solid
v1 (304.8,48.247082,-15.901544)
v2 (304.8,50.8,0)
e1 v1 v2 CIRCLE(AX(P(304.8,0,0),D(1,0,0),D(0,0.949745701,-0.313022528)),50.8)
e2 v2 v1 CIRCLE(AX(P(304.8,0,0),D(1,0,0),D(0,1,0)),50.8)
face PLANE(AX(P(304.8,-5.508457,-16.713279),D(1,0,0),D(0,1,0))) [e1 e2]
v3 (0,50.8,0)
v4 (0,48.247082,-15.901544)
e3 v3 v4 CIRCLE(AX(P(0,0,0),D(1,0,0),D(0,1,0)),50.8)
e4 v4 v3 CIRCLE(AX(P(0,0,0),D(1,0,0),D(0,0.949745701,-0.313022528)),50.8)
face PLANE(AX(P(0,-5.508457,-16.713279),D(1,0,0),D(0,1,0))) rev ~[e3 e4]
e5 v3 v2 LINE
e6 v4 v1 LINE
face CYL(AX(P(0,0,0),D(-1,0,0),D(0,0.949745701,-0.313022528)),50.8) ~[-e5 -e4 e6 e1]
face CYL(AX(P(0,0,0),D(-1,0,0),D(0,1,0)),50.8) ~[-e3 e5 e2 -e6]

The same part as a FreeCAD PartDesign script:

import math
import FreeCAD as App
import Part
import Sketcher
from FreeCAD import Vector
Q = App.Units.Quantity

doc = App.newDocument("Part")
params = doc.addObject("Spreadsheet::Sheet", "Params")
for row, (alias, value) in enumerate([
    ("sketch1_radius", "2 in"),
    ("pad1_length", "12 in"),
], start=1):
    params.set(f"A{row}", alias)
    params.set(f"B{row}", "=" + value)
    params.setAlias(f"B{row}", alias)

body = doc.addObject("PartDesign::Body", "Body")

# Sketch on YZ plane
sketch1 = body.newObject("Sketcher::SketchObject", "Sketch")
sketch1.AttachmentSupport = (doc.getObject("YZ_Plane"), [""])
sketch1.MapMode = "FlatFace"
sketch1.addGeometry(Part.ArcOfCircle(Part.Circle(Vector(0, 0, 0), Vector(0, 0, 1), 51), math.radians(-18.24), math.radians(0)), False)
sketch1.addGeometry(Part.ArcOfCircle(Part.Circle(Vector(0, 0, 0), Vector(0, 0, 1), 51), math.radians(0), math.radians(342)), False)
sketch1.addConstraint(Sketcher.Constraint("Tangent", 0, 1, 1, 2))
sketch1.addConstraint(Sketcher.Constraint("Coincident", 1, 1, 0, 2))
sketch1.addConstraint(Sketcher.Constraint("Coincident", 0, 3, -1, 1))
sketch1.addConstraint(Sketcher.Constraint("PointOnObject", 1, 1, -1))
sketch1.addConstraint(Sketcher.Constraint("Radius", 0, Q("2 in")))
sketch1.addConstraint(Sketcher.Constraint("DistanceX", -1, 1, 0, 1, Q("48.247082 mm")))
sketch1.setExpression("Constraints[4]", "Params.sketch1_radius")
pad1 = body.newObject("PartDesign::Pad", "Pad")
pad1.Profile = sketch1
pad1.setExpression("Length", "Params.pad1_length")
body2 = doc.addObject("PartDesign::Body", "Body001")
doc.recompute()

body2.BaseFeature = body
doc.recompute()
body.Visibility = False

doc.recompute()
